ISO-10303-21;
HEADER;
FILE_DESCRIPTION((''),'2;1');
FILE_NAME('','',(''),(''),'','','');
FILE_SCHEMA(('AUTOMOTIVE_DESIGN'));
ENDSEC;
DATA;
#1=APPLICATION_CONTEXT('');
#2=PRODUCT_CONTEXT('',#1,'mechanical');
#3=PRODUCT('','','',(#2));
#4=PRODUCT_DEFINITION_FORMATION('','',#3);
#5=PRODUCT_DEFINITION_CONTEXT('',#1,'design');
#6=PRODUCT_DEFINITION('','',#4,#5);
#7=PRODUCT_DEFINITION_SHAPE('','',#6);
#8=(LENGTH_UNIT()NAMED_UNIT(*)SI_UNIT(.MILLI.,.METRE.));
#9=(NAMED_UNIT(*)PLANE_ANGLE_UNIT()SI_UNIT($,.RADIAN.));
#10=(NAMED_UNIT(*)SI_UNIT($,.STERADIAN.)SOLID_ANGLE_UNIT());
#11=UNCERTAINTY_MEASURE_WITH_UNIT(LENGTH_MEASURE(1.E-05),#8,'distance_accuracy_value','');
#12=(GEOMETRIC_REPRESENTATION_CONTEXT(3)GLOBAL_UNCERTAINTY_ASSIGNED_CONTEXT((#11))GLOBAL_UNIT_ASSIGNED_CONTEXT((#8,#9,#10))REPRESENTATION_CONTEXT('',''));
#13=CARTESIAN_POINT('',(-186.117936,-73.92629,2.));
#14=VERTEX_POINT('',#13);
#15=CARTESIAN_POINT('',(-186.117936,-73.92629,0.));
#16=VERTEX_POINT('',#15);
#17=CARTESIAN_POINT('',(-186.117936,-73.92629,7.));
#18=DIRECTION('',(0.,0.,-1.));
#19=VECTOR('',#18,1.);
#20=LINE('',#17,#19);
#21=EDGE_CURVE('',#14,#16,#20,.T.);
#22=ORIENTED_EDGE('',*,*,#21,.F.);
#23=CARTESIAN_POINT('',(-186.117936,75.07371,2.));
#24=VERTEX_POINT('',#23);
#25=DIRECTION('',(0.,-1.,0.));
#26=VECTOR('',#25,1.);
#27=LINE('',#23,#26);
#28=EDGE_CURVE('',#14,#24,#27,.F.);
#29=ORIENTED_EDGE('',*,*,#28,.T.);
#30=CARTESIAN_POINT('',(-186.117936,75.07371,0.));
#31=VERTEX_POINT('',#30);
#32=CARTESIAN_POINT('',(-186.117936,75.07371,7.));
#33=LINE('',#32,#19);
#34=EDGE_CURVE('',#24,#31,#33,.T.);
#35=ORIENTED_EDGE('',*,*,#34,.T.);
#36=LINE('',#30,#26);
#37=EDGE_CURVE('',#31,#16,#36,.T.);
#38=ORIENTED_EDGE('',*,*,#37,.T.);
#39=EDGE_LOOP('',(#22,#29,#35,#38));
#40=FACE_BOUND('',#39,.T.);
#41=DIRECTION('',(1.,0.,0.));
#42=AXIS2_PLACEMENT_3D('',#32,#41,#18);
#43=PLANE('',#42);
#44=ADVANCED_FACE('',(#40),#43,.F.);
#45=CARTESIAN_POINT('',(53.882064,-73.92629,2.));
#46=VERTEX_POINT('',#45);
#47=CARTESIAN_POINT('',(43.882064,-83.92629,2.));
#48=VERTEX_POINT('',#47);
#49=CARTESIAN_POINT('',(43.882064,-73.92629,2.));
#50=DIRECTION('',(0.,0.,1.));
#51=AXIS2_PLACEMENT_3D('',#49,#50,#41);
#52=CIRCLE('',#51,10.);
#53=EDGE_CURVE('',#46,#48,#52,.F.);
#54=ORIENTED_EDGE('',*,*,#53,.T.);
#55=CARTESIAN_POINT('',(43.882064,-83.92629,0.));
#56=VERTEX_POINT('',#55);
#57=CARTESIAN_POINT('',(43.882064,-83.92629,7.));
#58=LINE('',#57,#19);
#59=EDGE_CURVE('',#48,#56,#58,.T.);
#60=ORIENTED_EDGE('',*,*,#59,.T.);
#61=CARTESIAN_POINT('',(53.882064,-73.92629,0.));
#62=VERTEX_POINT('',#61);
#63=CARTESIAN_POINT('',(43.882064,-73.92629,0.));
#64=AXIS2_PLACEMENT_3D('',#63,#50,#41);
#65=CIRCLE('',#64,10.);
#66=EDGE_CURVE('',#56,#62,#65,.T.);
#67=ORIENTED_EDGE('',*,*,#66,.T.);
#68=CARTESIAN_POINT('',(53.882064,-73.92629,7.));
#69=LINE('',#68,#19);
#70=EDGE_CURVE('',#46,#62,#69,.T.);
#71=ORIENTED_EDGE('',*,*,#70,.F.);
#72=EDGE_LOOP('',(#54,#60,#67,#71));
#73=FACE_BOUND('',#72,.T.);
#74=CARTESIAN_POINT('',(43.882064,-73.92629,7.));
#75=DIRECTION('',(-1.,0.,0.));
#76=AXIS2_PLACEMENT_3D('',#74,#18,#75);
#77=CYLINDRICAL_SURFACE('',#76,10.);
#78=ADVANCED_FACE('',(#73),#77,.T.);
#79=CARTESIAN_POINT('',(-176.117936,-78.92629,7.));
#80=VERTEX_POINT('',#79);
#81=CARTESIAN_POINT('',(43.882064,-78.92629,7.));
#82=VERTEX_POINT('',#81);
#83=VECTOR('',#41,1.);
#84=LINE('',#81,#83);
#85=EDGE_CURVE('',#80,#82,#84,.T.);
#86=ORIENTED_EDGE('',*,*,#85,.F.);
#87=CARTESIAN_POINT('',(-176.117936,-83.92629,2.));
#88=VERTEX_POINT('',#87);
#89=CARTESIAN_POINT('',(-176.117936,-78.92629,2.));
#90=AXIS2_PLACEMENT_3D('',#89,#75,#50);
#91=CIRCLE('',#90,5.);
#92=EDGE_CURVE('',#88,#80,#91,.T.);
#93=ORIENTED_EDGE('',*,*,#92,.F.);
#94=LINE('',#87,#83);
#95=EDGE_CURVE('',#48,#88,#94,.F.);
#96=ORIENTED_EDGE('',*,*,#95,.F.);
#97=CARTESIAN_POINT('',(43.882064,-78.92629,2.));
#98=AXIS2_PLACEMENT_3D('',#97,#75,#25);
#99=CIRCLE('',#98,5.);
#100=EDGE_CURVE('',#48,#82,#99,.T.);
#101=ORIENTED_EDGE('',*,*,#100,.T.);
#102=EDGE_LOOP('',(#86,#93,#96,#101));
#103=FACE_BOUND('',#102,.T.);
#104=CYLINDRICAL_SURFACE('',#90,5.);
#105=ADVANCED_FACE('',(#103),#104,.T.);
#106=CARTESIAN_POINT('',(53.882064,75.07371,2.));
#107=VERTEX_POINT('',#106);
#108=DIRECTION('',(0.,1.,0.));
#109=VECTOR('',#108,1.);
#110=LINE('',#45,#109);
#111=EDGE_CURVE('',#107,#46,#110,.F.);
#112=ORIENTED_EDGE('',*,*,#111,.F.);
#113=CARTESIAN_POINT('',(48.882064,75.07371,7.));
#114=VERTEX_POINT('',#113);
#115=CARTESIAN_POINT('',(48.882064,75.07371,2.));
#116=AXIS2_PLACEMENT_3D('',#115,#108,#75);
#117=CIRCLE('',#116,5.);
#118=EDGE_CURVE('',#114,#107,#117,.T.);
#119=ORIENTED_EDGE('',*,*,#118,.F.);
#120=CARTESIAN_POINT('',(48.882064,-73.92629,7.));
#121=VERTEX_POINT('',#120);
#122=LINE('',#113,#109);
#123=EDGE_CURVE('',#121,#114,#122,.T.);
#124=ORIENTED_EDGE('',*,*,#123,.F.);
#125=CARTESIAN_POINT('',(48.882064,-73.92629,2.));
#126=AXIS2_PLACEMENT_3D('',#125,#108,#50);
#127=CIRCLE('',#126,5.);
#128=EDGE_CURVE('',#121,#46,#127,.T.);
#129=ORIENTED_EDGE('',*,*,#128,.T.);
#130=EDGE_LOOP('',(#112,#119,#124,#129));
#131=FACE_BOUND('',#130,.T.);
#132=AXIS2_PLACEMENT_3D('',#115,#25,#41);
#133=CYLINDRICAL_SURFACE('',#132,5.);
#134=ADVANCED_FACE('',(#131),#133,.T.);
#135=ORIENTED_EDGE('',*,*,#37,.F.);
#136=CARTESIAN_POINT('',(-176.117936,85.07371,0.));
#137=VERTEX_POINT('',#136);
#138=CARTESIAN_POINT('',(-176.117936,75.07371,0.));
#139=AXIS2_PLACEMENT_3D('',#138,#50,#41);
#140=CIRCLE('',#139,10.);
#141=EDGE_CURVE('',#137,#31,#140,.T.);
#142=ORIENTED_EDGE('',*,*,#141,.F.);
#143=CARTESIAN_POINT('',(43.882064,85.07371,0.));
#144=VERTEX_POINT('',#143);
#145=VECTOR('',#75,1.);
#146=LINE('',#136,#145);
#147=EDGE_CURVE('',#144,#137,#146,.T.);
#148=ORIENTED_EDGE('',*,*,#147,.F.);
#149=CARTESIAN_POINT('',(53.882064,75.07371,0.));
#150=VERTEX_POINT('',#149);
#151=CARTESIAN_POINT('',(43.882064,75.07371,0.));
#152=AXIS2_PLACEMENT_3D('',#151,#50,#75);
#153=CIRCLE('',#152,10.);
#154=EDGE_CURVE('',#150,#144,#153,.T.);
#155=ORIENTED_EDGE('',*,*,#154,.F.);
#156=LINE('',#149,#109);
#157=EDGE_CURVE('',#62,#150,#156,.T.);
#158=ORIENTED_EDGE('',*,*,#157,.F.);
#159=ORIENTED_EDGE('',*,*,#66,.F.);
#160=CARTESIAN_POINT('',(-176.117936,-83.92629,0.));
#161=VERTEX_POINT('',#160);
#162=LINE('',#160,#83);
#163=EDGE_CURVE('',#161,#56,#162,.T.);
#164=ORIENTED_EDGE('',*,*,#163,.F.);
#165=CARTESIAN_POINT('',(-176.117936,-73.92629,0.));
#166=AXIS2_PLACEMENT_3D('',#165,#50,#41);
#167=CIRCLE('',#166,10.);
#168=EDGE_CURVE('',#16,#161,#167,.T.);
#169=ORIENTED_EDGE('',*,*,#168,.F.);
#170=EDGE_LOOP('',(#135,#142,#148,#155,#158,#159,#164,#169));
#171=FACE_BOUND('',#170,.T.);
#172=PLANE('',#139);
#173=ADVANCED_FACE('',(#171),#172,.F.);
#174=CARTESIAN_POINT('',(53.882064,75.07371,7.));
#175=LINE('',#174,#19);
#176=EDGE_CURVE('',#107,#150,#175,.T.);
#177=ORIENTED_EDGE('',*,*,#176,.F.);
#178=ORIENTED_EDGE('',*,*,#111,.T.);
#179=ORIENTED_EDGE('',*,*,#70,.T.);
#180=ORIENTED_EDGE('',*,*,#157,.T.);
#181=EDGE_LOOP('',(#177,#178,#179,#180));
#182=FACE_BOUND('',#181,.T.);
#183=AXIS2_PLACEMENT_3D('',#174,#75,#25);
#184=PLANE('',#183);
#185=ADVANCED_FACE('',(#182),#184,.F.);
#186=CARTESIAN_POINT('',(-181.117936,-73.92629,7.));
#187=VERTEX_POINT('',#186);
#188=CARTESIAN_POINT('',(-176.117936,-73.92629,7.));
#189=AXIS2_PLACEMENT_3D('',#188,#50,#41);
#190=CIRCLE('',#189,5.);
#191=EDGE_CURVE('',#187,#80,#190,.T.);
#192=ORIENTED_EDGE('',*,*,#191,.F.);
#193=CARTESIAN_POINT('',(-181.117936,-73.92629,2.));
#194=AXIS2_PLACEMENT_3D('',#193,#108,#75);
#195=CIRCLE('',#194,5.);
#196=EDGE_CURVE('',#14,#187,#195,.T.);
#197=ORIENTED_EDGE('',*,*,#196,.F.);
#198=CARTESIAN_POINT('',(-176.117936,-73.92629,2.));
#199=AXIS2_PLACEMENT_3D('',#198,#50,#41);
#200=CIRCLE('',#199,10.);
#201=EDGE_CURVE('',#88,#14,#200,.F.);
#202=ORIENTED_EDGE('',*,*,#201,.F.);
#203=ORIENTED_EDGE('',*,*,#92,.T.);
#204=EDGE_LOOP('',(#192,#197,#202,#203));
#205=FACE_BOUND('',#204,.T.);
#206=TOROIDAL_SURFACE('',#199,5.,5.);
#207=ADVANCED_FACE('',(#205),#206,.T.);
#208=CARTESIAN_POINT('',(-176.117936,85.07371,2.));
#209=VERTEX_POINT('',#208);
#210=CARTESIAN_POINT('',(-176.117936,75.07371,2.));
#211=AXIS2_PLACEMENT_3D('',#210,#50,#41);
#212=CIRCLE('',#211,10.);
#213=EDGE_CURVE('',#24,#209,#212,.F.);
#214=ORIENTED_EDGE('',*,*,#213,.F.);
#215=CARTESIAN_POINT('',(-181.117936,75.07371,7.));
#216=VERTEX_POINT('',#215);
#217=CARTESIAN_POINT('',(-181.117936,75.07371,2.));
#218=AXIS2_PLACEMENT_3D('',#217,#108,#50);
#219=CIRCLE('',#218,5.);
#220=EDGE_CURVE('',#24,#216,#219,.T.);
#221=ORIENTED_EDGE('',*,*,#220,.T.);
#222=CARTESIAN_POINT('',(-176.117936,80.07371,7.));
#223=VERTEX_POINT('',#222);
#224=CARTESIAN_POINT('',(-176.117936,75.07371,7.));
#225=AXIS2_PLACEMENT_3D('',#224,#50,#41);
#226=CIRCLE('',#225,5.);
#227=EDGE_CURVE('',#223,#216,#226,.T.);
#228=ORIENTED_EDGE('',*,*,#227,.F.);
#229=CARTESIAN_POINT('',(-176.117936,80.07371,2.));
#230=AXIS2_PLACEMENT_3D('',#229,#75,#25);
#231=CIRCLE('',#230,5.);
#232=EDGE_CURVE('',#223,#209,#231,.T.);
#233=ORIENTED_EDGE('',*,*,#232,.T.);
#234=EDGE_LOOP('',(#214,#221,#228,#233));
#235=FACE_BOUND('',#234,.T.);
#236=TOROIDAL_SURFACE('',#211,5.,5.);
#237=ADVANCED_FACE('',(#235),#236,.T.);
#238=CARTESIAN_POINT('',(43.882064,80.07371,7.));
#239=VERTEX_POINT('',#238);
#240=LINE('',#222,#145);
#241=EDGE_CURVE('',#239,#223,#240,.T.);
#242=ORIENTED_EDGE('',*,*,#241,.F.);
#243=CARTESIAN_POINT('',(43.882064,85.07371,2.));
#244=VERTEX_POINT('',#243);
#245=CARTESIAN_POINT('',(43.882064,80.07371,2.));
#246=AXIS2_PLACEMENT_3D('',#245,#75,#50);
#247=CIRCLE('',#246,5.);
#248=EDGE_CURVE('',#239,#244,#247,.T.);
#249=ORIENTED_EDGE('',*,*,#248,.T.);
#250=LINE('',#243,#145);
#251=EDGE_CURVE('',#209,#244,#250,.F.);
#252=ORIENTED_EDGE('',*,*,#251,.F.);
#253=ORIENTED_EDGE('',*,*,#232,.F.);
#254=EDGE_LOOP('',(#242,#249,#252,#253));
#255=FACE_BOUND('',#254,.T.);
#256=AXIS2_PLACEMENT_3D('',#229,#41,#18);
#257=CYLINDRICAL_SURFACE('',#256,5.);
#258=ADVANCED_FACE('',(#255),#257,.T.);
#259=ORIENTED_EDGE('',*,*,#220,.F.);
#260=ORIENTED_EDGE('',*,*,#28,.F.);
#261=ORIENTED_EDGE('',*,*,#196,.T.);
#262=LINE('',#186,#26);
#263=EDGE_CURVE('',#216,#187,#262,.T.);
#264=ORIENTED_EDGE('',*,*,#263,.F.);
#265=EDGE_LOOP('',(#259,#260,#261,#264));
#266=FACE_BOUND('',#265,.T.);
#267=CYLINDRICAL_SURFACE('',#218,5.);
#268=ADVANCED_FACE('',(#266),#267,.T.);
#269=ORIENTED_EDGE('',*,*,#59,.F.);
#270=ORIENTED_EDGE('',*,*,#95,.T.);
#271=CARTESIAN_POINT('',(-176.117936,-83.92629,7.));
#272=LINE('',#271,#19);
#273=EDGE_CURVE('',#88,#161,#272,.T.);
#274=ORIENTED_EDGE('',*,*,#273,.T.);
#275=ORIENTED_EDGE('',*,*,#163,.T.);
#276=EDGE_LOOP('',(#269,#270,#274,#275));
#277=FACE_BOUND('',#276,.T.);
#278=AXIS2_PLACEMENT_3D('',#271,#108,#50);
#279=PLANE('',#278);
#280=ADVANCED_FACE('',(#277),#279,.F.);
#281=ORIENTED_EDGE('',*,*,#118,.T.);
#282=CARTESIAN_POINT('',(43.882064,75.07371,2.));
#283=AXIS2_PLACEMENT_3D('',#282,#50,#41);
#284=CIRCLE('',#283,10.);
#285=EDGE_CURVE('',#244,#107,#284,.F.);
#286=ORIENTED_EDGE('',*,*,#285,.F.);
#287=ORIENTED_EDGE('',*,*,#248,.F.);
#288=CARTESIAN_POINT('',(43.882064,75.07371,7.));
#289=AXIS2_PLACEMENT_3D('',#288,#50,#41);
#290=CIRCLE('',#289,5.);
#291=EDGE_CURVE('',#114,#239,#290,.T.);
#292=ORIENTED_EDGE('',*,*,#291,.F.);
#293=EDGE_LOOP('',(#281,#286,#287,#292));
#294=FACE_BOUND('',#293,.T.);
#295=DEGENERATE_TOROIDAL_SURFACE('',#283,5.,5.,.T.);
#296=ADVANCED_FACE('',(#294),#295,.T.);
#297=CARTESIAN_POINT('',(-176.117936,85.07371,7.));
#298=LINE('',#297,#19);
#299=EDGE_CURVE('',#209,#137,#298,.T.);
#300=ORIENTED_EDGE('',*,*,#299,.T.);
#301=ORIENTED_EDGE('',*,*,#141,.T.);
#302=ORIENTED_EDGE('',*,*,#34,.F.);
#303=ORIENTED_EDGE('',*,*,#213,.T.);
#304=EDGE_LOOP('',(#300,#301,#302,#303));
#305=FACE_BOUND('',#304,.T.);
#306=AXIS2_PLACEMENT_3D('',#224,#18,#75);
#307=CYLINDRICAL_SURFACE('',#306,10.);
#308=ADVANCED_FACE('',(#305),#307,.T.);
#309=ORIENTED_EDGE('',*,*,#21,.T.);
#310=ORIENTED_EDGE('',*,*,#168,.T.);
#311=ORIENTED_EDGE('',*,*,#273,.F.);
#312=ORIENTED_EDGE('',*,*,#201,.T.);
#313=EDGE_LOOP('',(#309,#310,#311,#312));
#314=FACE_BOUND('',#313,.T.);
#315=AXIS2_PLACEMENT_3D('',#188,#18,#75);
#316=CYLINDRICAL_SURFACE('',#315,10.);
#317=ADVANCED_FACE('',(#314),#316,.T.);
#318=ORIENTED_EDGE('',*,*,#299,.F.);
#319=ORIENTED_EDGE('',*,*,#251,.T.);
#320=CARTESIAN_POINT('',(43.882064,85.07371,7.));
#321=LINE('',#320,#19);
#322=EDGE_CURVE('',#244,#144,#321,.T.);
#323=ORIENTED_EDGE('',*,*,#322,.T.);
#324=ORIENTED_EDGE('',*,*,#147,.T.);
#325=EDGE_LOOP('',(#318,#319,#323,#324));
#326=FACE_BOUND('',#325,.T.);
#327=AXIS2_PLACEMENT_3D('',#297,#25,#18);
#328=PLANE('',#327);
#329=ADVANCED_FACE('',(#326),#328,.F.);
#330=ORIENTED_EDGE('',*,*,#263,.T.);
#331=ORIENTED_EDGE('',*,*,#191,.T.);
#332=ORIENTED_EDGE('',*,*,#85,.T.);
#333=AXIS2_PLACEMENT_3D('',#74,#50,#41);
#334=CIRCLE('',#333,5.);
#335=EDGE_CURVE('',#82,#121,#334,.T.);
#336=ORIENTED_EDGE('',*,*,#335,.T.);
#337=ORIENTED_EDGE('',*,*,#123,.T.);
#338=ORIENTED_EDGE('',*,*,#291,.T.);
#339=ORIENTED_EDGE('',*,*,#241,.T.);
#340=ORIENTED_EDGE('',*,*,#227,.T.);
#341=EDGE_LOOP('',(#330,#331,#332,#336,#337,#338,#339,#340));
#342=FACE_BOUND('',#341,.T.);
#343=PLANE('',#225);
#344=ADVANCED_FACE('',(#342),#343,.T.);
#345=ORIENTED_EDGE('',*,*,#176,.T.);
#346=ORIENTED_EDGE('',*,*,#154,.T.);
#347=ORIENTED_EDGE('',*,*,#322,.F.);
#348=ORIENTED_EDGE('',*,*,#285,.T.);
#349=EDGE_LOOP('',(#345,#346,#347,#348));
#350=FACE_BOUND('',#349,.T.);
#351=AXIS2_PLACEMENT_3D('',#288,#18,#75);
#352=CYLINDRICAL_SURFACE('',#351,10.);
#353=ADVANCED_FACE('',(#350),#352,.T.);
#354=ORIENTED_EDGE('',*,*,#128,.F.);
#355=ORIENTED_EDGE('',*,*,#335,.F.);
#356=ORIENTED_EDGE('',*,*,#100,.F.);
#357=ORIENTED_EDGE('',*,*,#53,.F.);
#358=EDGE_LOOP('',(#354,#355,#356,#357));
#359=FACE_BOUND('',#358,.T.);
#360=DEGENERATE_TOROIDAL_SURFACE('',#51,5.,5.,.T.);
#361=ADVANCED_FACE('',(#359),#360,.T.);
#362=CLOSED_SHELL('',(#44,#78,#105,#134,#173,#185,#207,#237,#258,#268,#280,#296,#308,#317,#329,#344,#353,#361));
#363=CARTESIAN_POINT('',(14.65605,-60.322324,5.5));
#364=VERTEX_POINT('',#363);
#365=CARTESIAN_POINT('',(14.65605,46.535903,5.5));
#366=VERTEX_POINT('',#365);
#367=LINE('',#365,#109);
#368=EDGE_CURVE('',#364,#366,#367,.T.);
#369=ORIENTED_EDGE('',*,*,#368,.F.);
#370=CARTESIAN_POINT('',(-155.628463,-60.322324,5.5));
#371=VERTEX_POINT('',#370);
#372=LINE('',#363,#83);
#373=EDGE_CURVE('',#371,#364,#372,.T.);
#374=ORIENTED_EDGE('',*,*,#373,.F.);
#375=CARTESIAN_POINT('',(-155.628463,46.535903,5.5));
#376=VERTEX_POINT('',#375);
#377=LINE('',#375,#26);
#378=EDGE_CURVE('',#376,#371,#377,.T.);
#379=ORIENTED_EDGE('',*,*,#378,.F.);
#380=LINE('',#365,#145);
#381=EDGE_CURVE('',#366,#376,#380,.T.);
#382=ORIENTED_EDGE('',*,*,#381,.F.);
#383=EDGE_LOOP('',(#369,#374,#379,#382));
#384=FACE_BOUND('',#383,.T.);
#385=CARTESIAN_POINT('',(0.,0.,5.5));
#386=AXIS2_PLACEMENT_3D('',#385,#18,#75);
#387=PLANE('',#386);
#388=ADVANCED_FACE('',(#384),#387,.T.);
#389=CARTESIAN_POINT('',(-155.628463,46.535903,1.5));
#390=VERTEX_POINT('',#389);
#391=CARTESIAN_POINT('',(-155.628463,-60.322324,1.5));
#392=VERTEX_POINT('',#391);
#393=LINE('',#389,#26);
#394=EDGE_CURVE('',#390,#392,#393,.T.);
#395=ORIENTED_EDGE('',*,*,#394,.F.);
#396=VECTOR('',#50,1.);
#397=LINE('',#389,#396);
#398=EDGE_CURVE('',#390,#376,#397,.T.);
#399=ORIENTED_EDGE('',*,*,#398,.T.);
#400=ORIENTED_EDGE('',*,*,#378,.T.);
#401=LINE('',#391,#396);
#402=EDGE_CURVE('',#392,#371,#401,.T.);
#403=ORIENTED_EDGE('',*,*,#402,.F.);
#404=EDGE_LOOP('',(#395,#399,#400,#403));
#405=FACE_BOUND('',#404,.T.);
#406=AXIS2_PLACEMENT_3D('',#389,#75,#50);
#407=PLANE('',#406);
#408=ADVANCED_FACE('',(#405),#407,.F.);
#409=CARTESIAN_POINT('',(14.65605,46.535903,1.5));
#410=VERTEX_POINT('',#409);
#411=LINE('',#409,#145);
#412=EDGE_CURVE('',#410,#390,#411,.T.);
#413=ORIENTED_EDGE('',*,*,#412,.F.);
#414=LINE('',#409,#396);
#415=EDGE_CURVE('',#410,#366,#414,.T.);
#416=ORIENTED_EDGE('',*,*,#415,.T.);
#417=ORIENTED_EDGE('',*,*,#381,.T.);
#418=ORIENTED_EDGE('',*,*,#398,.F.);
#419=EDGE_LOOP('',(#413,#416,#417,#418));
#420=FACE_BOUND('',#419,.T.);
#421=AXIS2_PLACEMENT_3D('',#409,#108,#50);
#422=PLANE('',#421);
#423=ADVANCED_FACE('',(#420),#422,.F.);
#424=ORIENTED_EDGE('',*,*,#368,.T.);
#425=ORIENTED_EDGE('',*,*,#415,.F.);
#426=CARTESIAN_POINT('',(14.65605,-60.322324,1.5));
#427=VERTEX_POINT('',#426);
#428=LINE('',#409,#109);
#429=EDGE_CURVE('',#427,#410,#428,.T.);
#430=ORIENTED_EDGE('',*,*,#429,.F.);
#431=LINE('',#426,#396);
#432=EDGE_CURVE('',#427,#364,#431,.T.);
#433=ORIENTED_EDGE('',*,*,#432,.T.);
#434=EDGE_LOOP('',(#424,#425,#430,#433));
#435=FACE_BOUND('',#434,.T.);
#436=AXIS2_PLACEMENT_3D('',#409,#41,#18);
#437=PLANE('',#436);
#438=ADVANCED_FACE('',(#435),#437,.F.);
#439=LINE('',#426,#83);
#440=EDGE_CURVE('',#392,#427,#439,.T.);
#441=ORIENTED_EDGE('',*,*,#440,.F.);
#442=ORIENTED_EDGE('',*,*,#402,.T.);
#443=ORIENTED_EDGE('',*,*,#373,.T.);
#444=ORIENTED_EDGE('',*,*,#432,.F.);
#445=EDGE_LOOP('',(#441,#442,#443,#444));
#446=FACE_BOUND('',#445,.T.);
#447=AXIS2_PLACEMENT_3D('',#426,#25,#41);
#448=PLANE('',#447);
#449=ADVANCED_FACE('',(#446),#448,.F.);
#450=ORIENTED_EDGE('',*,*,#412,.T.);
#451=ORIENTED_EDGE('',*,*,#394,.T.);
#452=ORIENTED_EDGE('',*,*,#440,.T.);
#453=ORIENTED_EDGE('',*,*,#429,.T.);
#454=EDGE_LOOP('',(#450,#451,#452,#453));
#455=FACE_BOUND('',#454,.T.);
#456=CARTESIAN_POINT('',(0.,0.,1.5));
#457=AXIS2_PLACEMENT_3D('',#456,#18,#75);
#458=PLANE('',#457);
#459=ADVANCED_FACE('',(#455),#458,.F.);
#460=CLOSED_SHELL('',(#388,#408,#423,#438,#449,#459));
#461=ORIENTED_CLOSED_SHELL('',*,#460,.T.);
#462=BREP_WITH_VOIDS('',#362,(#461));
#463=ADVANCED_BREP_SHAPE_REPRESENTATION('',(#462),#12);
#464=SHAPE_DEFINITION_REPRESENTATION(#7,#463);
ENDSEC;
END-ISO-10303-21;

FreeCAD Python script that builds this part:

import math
import FreeCAD as App
import Part
import Sketcher

V = App.Vector


def edges_at(feature, points):
    """Names of the edges that pass closest to the given points."""
    edges = feature.Shape.Edges
    near = lambda p: min(range(len(edges)), key=lambda i: edges[i].distToShape(Part.Vertex(*p))[0])
    return sorted({f"Edge{near(p) + 1}" for p in points})

doc = App.newDocument("Part")
body = doc.addObject("PartDesign::Body", "Body")

sketch1 = body.newObject("Sketcher::SketchObject", "Sketch")
sketch1.AttachmentSupport = (doc.getObject("XY_Plane"), [""])
sketch1.MapMode = "FlatFace"
sketch1.addGeometry([
    Part.LineSegment(V(44, 85, 0), V(-176, 85, 0)),
    Part.ArcOfCircle(Part.Circle(V(-176, 75, 0), V(0, 0, 1), 10), math.radians(90), math.radians(180)),
    Part.LineSegment(V(-186, 75, 0), V(-186, -74, 0)),
    Part.ArcOfCircle(Part.Circle(V(-176, -74, 0), V(0, 0, 1), 10), math.radians(180), math.radians(270)),
    Part.LineSegment(V(-176, -84, 0), V(44, -84, 0)),
    Part.ArcOfCircle(Part.Circle(V(44, -74, 0), V(0, 0, 1), 10), math.radians(-90), math.radians(0)),
    Part.LineSegment(V(54, -74, 0), V(54, 75, 0)),
    Part.ArcOfCircle(Part.Circle(V(44, 75, 0), V(0, 0, 1), 10), math.radians(0), math.radians(90)),
], False)
sketch1.addConstraint([
    Sketcher.Constraint("Tangent", 0, 2, 1, 1),
    Sketcher.Constraint("Tangent", 1, 2, 2, 1),
    Sketcher.Constraint("Tangent", 2, 2, 3, 1),
    Sketcher.Constraint("Tangent", 3, 2, 4, 1),
    Sketcher.Constraint("Tangent", 4, 2, 5, 1),
    Sketcher.Constraint("Tangent", 5, 2, 6, 1),
    Sketcher.Constraint("Tangent", 6, 2, 7, 1),
    Sketcher.Constraint("Tangent", 7, 2, 0, 1),
    Sketcher.Constraint("Horizontal", 0),
    Sketcher.Constraint("Vertical", 2),
    Sketcher.Constraint("Horizontal", 4),
    Sketcher.Constraint("Vertical", 6),
    Sketcher.Constraint("Equal", 1, 3),
    Sketcher.Constraint("Equal", 3, 5),
    Sketcher.Constraint("Equal", 5, 7),
    Sketcher.Constraint("Radius", 1, 10.0),
    Sketcher.Constraint("DistanceX", 0, 2, 0, 1, 220.0),
    Sketcher.Constraint("DistanceY", 2, 2, 2, 1, 149.0),
    Sketcher.Constraint("DistanceY", -1, 1, 1, 3, 75.07371),
    Sketcher.Constraint("DistanceX", 1, 3, -1, 1, 176.117936),
])
pad1 = body.newObject("PartDesign::Pad", "Pad")
pad1.Profile = sketch1
pad1.Length = 7
doc.recompute()

fillet = body.newObject("PartDesign::Fillet", "Fillet")
fillet.Base = (pad1, edges_at(pad1, [
    (-183.189, -80.997, 7),
    (-66.118, -83.926, 7),
    (50.953, -80.997, 7),
    (53.882, 0.574, 7),
    (50.953, 82.145, 7),
    (-66.118, 85.074, 7),
    (-183.189, 82.145, 7),
    (-186.118, 0.574, 7),
]))
fillet.Radius = 5

sketch2 = body.newObject("Sketcher::SketchObject", "Sketch001")
sketch2.AttachmentSupport = (doc.getObject("XY_Plane"), [""])
sketch2.MapMode = "FlatFace"
sketch2.AttachmentOffset = App.Placement(V(0, 0, 3.5), App.Rotation())
sketch2.addGeometry([
    Part.LineSegment(V(-156, 47, 0), V(-156, -60, 0)),
    Part.LineSegment(V(-156, -60, 0), V(15, -60, 0)),
    Part.LineSegment(V(15, -60, 0), V(15, 47, 0)),
    Part.LineSegment(V(15, 47, 0), V(-156, 47, 0)),
], False)
sketch2.addConstraint([
    Sketcher.Constraint("Coincident", 0, 2, 1, 1),
    Sketcher.Constraint("Coincident", 1, 2, 2, 1),
    Sketcher.Constraint("Coincident", 2, 2, 3, 1),
    Sketcher.Constraint("Coincident", 3, 2, 0, 1),
    Sketcher.Constraint("Vertical", 0),
    Sketcher.Constraint("Horizontal", 1),
    Sketcher.Constraint("Vertical", 2),
    Sketcher.Constraint("Horizontal", 3),
    Sketcher.Constraint("DistanceX", 1, 1, 1, 2, 170.284514),
    Sketcher.Constraint("DistanceY", 0, 2, 0, 1, 106.858228),
    Sketcher.Constraint("DistanceX", -1, 1, 1, 2, 14.65605),
    Sketcher.Constraint("DistanceY", 0, 2, -1, 1, 60.322324),
])
pocket1 = body.newObject("PartDesign::Pocket", "Pocket")
pocket1.Profile = sketch2
pocket1.Length = 4
pocket1.Midplane = True

doc.recompute()
